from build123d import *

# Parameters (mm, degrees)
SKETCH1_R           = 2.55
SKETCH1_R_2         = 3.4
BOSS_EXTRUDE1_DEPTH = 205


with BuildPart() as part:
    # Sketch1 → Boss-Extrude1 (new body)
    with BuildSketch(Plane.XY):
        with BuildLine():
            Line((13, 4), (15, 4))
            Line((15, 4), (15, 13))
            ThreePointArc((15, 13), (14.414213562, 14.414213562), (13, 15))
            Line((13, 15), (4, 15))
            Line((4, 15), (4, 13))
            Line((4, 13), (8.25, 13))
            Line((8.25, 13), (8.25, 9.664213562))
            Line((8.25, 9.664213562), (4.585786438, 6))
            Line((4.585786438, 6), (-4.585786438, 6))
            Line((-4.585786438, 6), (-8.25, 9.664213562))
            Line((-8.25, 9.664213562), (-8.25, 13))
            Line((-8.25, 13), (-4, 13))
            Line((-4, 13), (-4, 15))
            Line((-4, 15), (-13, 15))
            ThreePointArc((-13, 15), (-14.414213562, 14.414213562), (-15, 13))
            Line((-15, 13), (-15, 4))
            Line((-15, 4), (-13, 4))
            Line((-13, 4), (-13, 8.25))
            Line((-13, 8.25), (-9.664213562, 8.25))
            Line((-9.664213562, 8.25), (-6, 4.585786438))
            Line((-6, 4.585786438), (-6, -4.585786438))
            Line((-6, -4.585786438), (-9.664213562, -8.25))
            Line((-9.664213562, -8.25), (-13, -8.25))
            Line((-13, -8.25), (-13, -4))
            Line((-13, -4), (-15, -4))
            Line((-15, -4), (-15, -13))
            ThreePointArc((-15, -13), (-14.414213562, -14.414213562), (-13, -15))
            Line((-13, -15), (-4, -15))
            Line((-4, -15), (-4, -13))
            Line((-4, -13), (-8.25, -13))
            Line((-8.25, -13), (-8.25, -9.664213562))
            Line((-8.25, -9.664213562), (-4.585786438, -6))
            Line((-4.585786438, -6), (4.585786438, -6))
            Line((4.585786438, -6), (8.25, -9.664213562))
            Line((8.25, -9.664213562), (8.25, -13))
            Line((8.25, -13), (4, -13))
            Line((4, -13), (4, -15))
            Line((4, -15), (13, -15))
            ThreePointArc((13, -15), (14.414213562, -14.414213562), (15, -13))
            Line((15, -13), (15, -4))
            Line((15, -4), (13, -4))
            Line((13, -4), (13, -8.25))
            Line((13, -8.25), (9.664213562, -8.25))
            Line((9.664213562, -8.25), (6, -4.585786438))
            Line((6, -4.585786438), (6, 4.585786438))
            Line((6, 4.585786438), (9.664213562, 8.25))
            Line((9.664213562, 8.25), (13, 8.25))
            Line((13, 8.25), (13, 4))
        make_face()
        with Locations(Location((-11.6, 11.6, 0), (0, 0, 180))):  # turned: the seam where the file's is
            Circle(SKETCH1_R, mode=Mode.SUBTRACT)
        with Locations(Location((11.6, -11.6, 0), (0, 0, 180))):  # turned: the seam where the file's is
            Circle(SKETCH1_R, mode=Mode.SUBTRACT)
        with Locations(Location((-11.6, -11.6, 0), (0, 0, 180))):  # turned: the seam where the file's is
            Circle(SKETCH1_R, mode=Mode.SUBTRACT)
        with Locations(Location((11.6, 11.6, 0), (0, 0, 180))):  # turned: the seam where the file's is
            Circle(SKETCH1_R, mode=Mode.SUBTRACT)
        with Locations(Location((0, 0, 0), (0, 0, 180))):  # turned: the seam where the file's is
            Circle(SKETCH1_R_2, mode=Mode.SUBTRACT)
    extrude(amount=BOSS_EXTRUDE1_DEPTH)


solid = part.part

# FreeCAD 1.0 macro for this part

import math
import FreeCAD as App
import Part
import Sketcher
from FreeCAD import Vector

doc = App.newDocument("Part")
body = doc.addObject("PartDesign::Body", "Body")

# Sketch on XY plane
sketch1 = doc.addObject("Sketcher::SketchObject", "Sketch")
body.addObject(sketch1)
sketch1.AttachmentSupport = (doc.XY_Plane, [""])
sketch1.MapMode = "FlatFace"
sketch1.addGeometry([
    Part.LineSegment(Vector(13, 4, 0), Vector(15, 4, 0)),  # 0
    Part.LineSegment(Vector(15, 4, 0), Vector(15, 13, 0)),  # 1
    Part.ArcOfCircle(Part.Circle(Vector(13, 13, 0), Vector(0, 0, 1), 2), math.radians(0), math.radians(90)),  # 2
    Part.LineSegment(Vector(13, 15, 0), Vector(4, 15, 0)),  # 3
    Part.LineSegment(Vector(4, 15, 0), Vector(4, 13, 0)),  # 4
    Part.LineSegment(Vector(4, 13, 0), Vector(8.25, 13, 0)),  # 5
    Part.LineSegment(Vector(8.25, 13, 0), Vector(8.25, 9.664214, 0)),  # 6
    Part.LineSegment(Vector(8.25, 9.664214, 0), Vector(4.585786, 6, 0)),  # 7
    Part.LineSegment(Vector(4.585786, 6, 0), Vector(-4.585786, 6, 0)),  # 8
    Part.LineSegment(Vector(-4.585786, 6, 0), Vector(-8.25, 9.664214, 0)),  # 9
    Part.LineSegment(Vector(-8.25, 9.664214, 0), Vector(-8.25, 13, 0)),  # 10
    Part.LineSegment(Vector(-8.25, 13, 0), Vector(-4, 13, 0)),  # 11
    Part.LineSegment(Vector(-4, 13, 0), Vector(-4, 15, 0)),  # 12
    Part.LineSegment(Vector(-4, 15, 0), Vector(-13, 15, 0)),  # 13
    Part.ArcOfCircle(Part.Circle(Vector(-13, 13, 0), Vector(0, 0, 1), 2), math.radians(90), math.radians(180)),  # 14
    Part.LineSegment(Vector(-15, 13, 0), Vector(-15, 4, 0)),  # 15
    Part.LineSegment(Vector(-15, 4, 0), Vector(-13, 4, 0)),  # 16
    Part.LineSegment(Vector(-13, 4, 0), Vector(-13, 8.25, 0)),  # 17
    Part.LineSegment(Vector(-13, 8.25, 0), Vector(-9.664214, 8.25, 0)),  # 18
    Part.LineSegment(Vector(-9.664214, 8.25, 0), Vector(-6, 4.585786, 0)),  # 19
    Part.LineSegment(Vector(-6, 4.585786, 0), Vector(-6, -4.585786, 0)),  # 20
    Part.LineSegment(Vector(-6, -4.585786, 0), Vector(-9.664214, -8.25, 0)),  # 21
    Part.LineSegment(Vector(-9.664214, -8.25, 0), Vector(-13, -8.25, 0)),  # 22
    Part.LineSegment(Vector(-13, -8.25, 0), Vector(-13, -4, 0)),  # 23
    Part.LineSegment(Vector(-13, -4, 0), Vector(-15, -4, 0)),  # 24
    Part.LineSegment(Vector(-15, -4, 0), Vector(-15, -13, 0)),  # 25
    Part.ArcOfCircle(Part.Circle(Vector(-13, -13, 0), Vector(0, 0, 1), 2), math.radians(-180), math.radians(-90)),  # 26
    Part.LineSegment(Vector(-13, -15, 0), Vector(-4, -15, 0)),  # 27
    Part.LineSegment(Vector(-4, -15, 0), Vector(-4, -13, 0)),  # 28
    Part.LineSegment(Vector(-4, -13, 0), Vector(-8.25, -13, 0)),  # 29
    Part.LineSegment(Vector(-8.25, -13, 0), Vector(-8.25, -9.664214, 0)),  # 30
    Part.LineSegment(Vector(-8.25, -9.664214, 0), Vector(-4.585786, -6, 0)),  # 31
    Part.LineSegment(Vector(-4.585786, -6, 0), Vector(4.585786, -6, 0)),  # 32
    Part.LineSegment(Vector(4.585786, -6, 0), Vector(8.25, -9.664214, 0)),  # 33
    Part.LineSegment(Vector(8.25, -9.664214, 0), Vector(8.25, -13, 0)),  # 34
    Part.LineSegment(Vector(8.25, -13, 0), Vector(4, -13, 0)),  # 35
    Part.LineSegment(Vector(4, -13, 0), Vector(4, -15, 0)),  # 36
    Part.LineSegment(Vector(4, -15, 0), Vector(13, -15, 0)),  # 37
    Part.ArcOfCircle(Part.Circle(Vector(13, -13, 0), Vector(0, 0, 1), 2), math.radians(-90), math.radians(0)),  # 38
    Part.LineSegment(Vector(15, -13, 0), Vector(15, -4, 0)),  # 39
    Part.LineSegment(Vector(15, -4, 0), Vector(13, -4, 0)),  # 40
    Part.LineSegment(Vector(13, -4, 0), Vector(13, -8.25, 0)),  # 41
    Part.LineSegment(Vector(13, -8.25, 0), Vector(9.664214, -8.25, 0)),  # 42
    Part.LineSegment(Vector(9.664214, -8.25, 0), Vector(6, -4.585786, 0)),  # 43
    Part.LineSegment(Vector(6, -4.585786, 0), Vector(6, 4.585786, 0)),  # 44
    Part.LineSegment(Vector(6, 4.585786, 0), Vector(9.664214, 8.25, 0)),  # 45
    Part.LineSegment(Vector(9.664214, 8.25, 0), Vector(13, 8.25, 0)),  # 46
    Part.LineSegment(Vector(13, 8.25, 0), Vector(13, 4, 0)),  # 47
    Part.Circle(Vector(-11.6, -11.6, 0), Vector(0, 0, 1), 2.55),  # 48
    Part.Circle(Vector(0, 0, 0), Vector(0, 0, 1), 3.4),  # 49
    Part.Circle(Vector(11.6, -11.6, 0), Vector(0, 0, 1), 2.55),  # 50
    Part.Circle(Vector(-11.6, 11.6, 0), Vector(0, 0, 1), 2.55),  # 51
    Part.Circle(Vector(11.6, 11.6, 0), Vector(0, 0, 1), 2.55),  # 52
], False)
sketch1.addConstraint([
    Sketcher.Constraint("Coincident", 0, 2, 1, 1),
    Sketcher.Constraint("Tangent", 1, 2, 2, 1),
    Sketcher.Constraint("Tangent", 2, 2, 3, 1),
    Sketcher.Constraint("Coincident", 3, 2, 4, 1),
    Sketcher.Constraint("Coincident", 4, 2, 5, 1),
    Sketcher.Constraint("Coincident", 5, 2, 6, 1),
    Sketcher.Constraint("Coincident", 6, 2, 7, 1),
    Sketcher.Constraint("Coincident", 7, 2, 8, 1),
    Sketcher.Constraint("Coincident", 8, 2, 9, 1),
    Sketcher.Constraint("Coincident", 9, 2, 10, 1),
    Sketcher.Constraint("Coincident", 10, 2, 11, 1),
    Sketcher.Constraint("Coincident", 11, 2, 12, 1),
    Sketcher.Constraint("Coincident", 12, 2, 13, 1),
    Sketcher.Constraint("Tangent", 13, 2, 14, 1),
    Sketcher.Constraint("Tangent", 14, 2, 15, 1),
    Sketcher.Constraint("Coincident", 15, 2, 16, 1),
    Sketcher.Constraint("Coincident", 16, 2, 17, 1),
    Sketcher.Constraint("Coincident", 17, 2, 18, 1),
    Sketcher.Constraint("Coincident", 18, 2, 19, 1),
    Sketcher.Constraint("Coincident", 19, 2, 20, 1),
    Sketcher.Constraint("Coincident", 20, 2, 21, 1),
    Sketcher.Constraint("Coincident", 21, 2, 22, 1),
    Sketcher.Constraint("Coincident", 22, 2, 23, 1),
    Sketcher.Constraint("Coincident", 23, 2, 24, 1),
    Sketcher.Constraint("Coincident", 24, 2, 25, 1),
    Sketcher.Constraint("Tangent", 25, 2, 26, 1),
    Sketcher.Constraint("Tangent", 26, 2, 27, 1),
    Sketcher.Constraint("Coincident", 27, 2, 28, 1),
    Sketcher.Constraint("Coincident", 28, 2, 29, 1),
    Sketcher.Constraint("Coincident", 29, 2, 30, 1),
    Sketcher.Constraint("Coincident", 30, 2, 31, 1),
    Sketcher.Constraint("Coincident", 31, 2, 32, 1),
    Sketcher.Constraint("Coincident", 32, 2, 33, 1),
    Sketcher.Constraint("Coincident", 33, 2, 34, 1),
    Sketcher.Constraint("Coincident", 34, 2, 35, 1),
    Sketcher.Constraint("Coincident", 35, 2, 36, 1),
    Sketcher.Constraint("Coincident", 36, 2, 37, 1),
    Sketcher.Constraint("Tangent", 37, 2, 38, 1),
    Sketcher.Constraint("Tangent", 38, 2, 39, 1),
    Sketcher.Constraint("Coincident", 39, 2, 40, 1),
    Sketcher.Constraint("Coincident", 40, 2, 41, 1),
    Sketcher.Constraint("Coincident", 41, 2, 42, 1),
    Sketcher.Constraint("Coincident", 42, 2, 43, 1),
    Sketcher.Constraint("Coincident", 43, 2, 44, 1),
    Sketcher.Constraint("Coincident", 44, 2, 45, 1),
    Sketcher.Constraint("Coincident", 45, 2, 46, 1),
    Sketcher.Constraint("Coincident", 46, 2, 47, 1),
    Sketcher.Constraint("Coincident", 47, 2, 0, 1),
    Sketcher.Constraint("Horizontal", 0),
    Sketcher.Constraint("Vertical", 1),
    Sketcher.Constraint("Horizontal", 3),
    Sketcher.Constraint("Vertical", 4),
    Sketcher.Constraint("Horizontal", 5),
    Sketcher.Constraint("Vertical", 6),
    Sketcher.Constraint("Horizontal", 8),
    Sketcher.Constraint("Vertical", 10),
    Sketcher.Constraint("Horizontal", 11),
    Sketcher.Constraint("Vertical", 12),
    Sketcher.Constraint("Horizontal", 13),
    Sketcher.Constraint("Vertical", 15),
    Sketcher.Constraint("Horizontal", 16),
    Sketcher.Constraint("Vertical", 17),
    Sketcher.Constraint("Horizontal", 18),
    Sketcher.Constraint("Vertical", 20),
    Sketcher.Constraint("Horizontal", 22),
    Sketcher.Constraint("Vertical", 23),
    Sketcher.Constraint("Horizontal", 24),
    Sketcher.Constraint("Vertical", 25),
    Sketcher.Constraint("Horizontal", 27),
    Sketcher.Constraint("Vertical", 28),
    Sketcher.Constraint("Horizontal", 29),
    Sketcher.Constraint("Vertical", 30),
    Sketcher.Constraint("Horizontal", 32),
    Sketcher.Constraint("Vertical", 34),
    Sketcher.Constraint("Horizontal", 35),
    Sketcher.Constraint("Vertical", 36),
    Sketcher.Constraint("Horizontal", 37),
    Sketcher.Constraint("Vertical", 39),
    Sketcher.Constraint("Horizontal", 40),
    Sketcher.Constraint("Vertical", 41),
    Sketcher.Constraint("Horizontal", 42),
    Sketcher.Constraint("Vertical", 44),
    Sketcher.Constraint("Horizontal", 46),
    Sketcher.Constraint("Vertical", 47),
    Sketcher.Constraint("Coincident", 49, 3, -1, 1),
    Sketcher.Constraint("Equal", 2, 14),
    Sketcher.Constraint("Equal", 14, 26),
    Sketcher.Constraint("Equal", 26, 38),
    Sketcher.Constraint("Equal", 48, 50),
    Sketcher.Constraint("Equal", 50, 51),
    Sketcher.Constraint("Equal", 51, 52),
    Sketcher.Constraint("Symmetric", 2, 3, 26, 3, -1, 1),
    Sketcher.Constraint("Symmetric", 14, 3, 38, 3, -1, 1),
    Sketcher.Constraint("Symmetric", 50, 3, 51, 3, -1, 1),
    Sketcher.Constraint("Symmetric", 48, 3, 52, 3, -1, 1),
    Sketcher.Constraint("Symmetric", 4, 2, 28, 2, -1, 1),
    Sketcher.Constraint("Symmetric", 6, 2, 30, 2, -1, 1),
    Sketcher.Constraint("Symmetric", 7, 2, 31, 2, -1, 1),
    Sketcher.Constraint("Symmetric", 9, 2, 33, 2, -1, 1),
    Sketcher.Constraint("Symmetric", 11, 2, 35, 2, -1, 1),
    Sketcher.Constraint("Symmetric", 16, 2, 40, 2, -1, 1),
    Sketcher.Constraint("Symmetric", 18, 2, 42, 2, -1, 1),
    Sketcher.Constraint("Symmetric", 19, 2, 43, 2, -1, 1),
    Sketcher.Constraint("Symmetric", 21, 2, 45, 2, -1, 1),
    Sketcher.Constraint("Symmetric", 23, 2, 47, 2, -1, 1),
    Sketcher.Constraint("Symmetric", 2, 3, 14, 3, -2),
    Sketcher.Constraint("Symmetric", 48, 3, 50, 3, -2),
    Sketcher.Constraint("Symmetric", 6, 2, 9, 2, -2),
    Sketcher.Constraint("Symmetric", 4, 2, 11, 2, -2),
    Sketcher.Constraint("Symmetric", 23, 2, 40, 2, -2),
    Sketcher.Constraint("Symmetric", 21, 2, 42, 2, -2),
    Sketcher.Constraint("Perpendicular", 7, 9),
    Sketcher.Constraint("Parallel", 9, 19),
    Sketcher.Constraint("Perpendicular", 19, 21),
    Sketcher.Constraint("Perpendicular", 31, 33),
    Sketcher.Constraint("Perpendicular", 43, 45),
    Sketcher.Constraint("Horizontal", 1, 2, 4, 2),
    Sketcher.Constraint("Horizontal", 20, 2, 43, 2),
    Sketcher.Constraint("Vertical", 13, 2, 16, 2),
    Sketcher.Constraint("Equal", 37, 1),
    Sketcher.Constraint("Equal", 46, 6),
    Sketcher.Constraint("Equal", 35, 17),
    Sketcher.Constraint("Equal", 32, 20),
    Sketcher.Constraint("Equal", 9, 19),
    Sketcher.Constraint("Radius", 2, 2.0),
    Sketcher.Constraint("Diameter", 48, 5.1),
    Sketcher.Constraint("Diameter", 49, 6.8),
    Sketcher.Constraint("DistanceX", 3, 2, 3, 1, 9.0),
    Sketcher.Constraint("DistanceX", -1, 1, 2, 3, 13.0),
    Sketcher.Constraint("DistanceY", -1, 1, 7, 2, 6.0),
    Sketcher.Constraint("DistanceX", 5, 1, 5, 2, 4.25),
    Sketcher.Constraint("DistanceX", 48, 3, -1, 1, 11.6),
    Sketcher.Constraint("DistanceY", 48, 3, -1, 1, 11.6),
    Sketcher.Constraint("Distance", 7, 5.181981),
])
pad1 = doc.addObject("PartDesign::Pad", "Pad")
body.addObject(pad1)
pad1.Profile = sketch1
pad1.Length = 205

doc.recompute()
